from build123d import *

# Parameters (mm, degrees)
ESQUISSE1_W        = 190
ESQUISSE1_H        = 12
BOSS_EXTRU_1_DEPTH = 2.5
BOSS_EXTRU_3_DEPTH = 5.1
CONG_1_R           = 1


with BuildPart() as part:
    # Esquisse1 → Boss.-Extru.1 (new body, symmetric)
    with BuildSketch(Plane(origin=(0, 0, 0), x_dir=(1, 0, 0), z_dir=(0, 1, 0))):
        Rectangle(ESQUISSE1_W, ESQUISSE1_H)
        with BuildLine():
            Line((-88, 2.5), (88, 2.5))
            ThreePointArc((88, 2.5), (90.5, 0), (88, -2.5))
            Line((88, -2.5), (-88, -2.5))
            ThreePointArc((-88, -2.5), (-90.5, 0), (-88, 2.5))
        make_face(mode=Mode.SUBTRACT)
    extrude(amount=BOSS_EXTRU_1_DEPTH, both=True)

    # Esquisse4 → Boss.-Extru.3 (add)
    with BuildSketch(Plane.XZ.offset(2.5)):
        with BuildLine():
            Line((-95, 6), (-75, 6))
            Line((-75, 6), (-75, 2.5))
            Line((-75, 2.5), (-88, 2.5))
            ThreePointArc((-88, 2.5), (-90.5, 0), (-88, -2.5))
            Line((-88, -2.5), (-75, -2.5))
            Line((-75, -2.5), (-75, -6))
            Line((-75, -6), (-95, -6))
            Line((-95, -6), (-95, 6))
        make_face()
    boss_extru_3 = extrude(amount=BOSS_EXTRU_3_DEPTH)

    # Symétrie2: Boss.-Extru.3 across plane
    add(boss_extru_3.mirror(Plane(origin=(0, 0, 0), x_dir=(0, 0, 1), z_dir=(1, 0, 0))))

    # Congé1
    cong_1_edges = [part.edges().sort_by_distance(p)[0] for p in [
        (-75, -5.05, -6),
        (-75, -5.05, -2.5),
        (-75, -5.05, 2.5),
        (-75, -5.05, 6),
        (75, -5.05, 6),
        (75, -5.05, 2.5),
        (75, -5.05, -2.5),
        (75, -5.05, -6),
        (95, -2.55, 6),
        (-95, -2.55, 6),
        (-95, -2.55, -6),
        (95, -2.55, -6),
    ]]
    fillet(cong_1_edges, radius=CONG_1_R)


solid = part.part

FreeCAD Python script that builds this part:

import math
import FreeCAD as App
import Part
import Sketcher
Q = App.Units.Quantity


def edges_at(feature, points):
    """Names of the edges that pass closest to the given points."""
    edges = feature.Shape.Edges
    near = lambda p: min(range(len(edges)), key=lambda i: edges[i].distToShape(Part.Vertex(*p))[0])
    return sorted({f"Edge{near(p) + 1}" for p in points})


def add_polygon(sketch, points):
    """Adds a closed chain of lines whose ends are joined by coincident constraints."""
    first, n = sketch.GeometryCount, len(points)
    for a, b in zip(points, points[1:] + points[:1]):
        sketch.addGeometry(Part.LineSegment(App.Vector(*a, 0), App.Vector(*b, 0)), False)
    for i in range(n):
        sketch.addConstraint(Sketcher.Constraint("Coincident", first + i, 2, first + (i + 1) % n, 1))

doc = App.newDocument("Part")
body = doc.addObject("PartDesign::Body", "Body")

# Sketch on XZ plane
sketch1 = body.newObject("Sketcher::SketchObject", "Sketch")
sketch1.AttachmentSupport = (doc.getObject("XZ_Plane"), [""])
sketch1.MapMode = "FlatFace"
add_polygon(sketch1, [(-95, -6), (-95, 6), (95, 6), (95, -6)])  # lines 0-3
sketch1.addGeometry(Part.ArcOfCircle(Part.Circle(App.Vector(-88, 0, 0), App.Vector(0, 0, 1), 2.5), math.radians(90), math.radians(270)), False)  # 4
sketch1.addGeometry(Part.LineSegment(App.Vector(-88, -2.5, 0), App.Vector(88, -2.5, 0)), False)  # 5
sketch1.addGeometry(Part.ArcOfCircle(Part.Circle(App.Vector(88, 0, 0), App.Vector(0, 0, 1), 2.5), math.radians(-90), math.radians(90)), False)  # 6
sketch1.addGeometry(Part.LineSegment(App.Vector(88, 2.5, 0), App.Vector(-88, 2.5, 0)), False)  # 7
sketch1.addConstraint(Sketcher.Constraint("Tangent", 4, 2, 5, 1))
sketch1.addConstraint(Sketcher.Constraint("Tangent", 5, 2, 6, 1))
sketch1.addConstraint(Sketcher.Constraint("Tangent", 6, 2, 7, 1))
sketch1.addConstraint(Sketcher.Constraint("Tangent", 7, 2, 4, 1))
sketch1.addConstraint(Sketcher.Constraint("Vertical", 0))
sketch1.addConstraint(Sketcher.Constraint("Horizontal", 1))
sketch1.addConstraint(Sketcher.Constraint("Vertical", 2))
sketch1.addConstraint(Sketcher.Constraint("Horizontal", 3))
sketch1.addConstraint(Sketcher.Constraint("Horizontal", 5))
sketch1.addConstraint(Sketcher.Constraint("Horizontal", 7))
sketch1.addConstraint(Sketcher.Constraint("Symmetric", 4, 3, 6, 3, -1, 1))
sketch1.addConstraint(Sketcher.Constraint("Symmetric", 0, 2, 2, 2, -1, 1))
sketch1.addConstraint(Sketcher.Constraint("Radius", 4, Q("2.5 mm")))
sketch1.addConstraint(Sketcher.Constraint("DistanceX", 1, 1, 1, 2, Q("190 mm")))
sketch1.addConstraint(Sketcher.Constraint("DistanceX", 5, 1, 5, 2, Q("176 mm")))
sketch1.addConstraint(Sketcher.Constraint("DistanceY", 0, 1, 0, 2, Q("12 mm")))
pad1 = body.newObject("PartDesign::Pad", "Pad")
pad1.Profile = sketch1
pad1.Length = 5
pad1.Midplane = True

# Sketch on XZ plane
sketch2 = body.newObject("Sketcher::SketchObject", "Sketch001")
sketch2.AttachmentSupport = (doc.getObject("XZ_Plane"), [""])
sketch2.MapMode = "FlatFace"
sketch2.AttachmentOffset = App.Placement(App.Vector(0, 0, 2.5), App.Rotation())
sketch2.addGeometry(Part.LineSegment(App.Vector(-75, 6, 0), App.Vector(-95, 6, 0)), False)
sketch2.addGeometry(Part.LineSegment(App.Vector(-95, 6, 0), App.Vector(-95, -6, 0)), False)
sketch2.addGeometry(Part.LineSegment(App.Vector(-95, -6, 0), App.Vector(-75, -6, 0)), False)
sketch2.addGeometry(Part.LineSegment(App.Vector(-75, -6, 0), App.Vector(-75, -2.5, 0)), False)
sketch2.addGeometry(Part.LineSegment(App.Vector(-75, -2.5, 0), App.Vector(-88, -2.5, 0)), False)
sketch2.addGeometry(Part.ArcOfCircle(Part.Circle(App.Vector(-88, 0, 0), App.Vector(0, 0, 1), 2.5), math.radians(90), math.radians(270)), False)
sketch2.addGeometry(Part.LineSegment(App.Vector(-88, 2.5, 0), App.Vector(-75, 2.5, 0)), False)
sketch2.addGeometry(Part.LineSegment(App.Vector(-75, 2.5, 0), App.Vector(-75, 6, 0)), False)
sketch2.addConstraint(Sketcher.Constraint("Coincident", 0, 2, 1, 1))
sketch2.addConstraint(Sketcher.Constraint("Coincident", 1, 2, 2, 1))
sketch2.addConstraint(Sketcher.Constraint("Coincident", 2, 2, 3, 1))
sketch2.addConstraint(Sketcher.Constraint("Coincident", 3, 2, 4, 1))
sketch2.addConstraint(Sketcher.Constraint("Tangent", 4, 2, 5, 2))
sketch2.addConstraint(Sketcher.Constraint("Tangent", 5, 1, 6, 1))
sketch2.addConstraint(Sketcher.Constraint("Coincident", 6, 2, 7, 1))
sketch2.addConstraint(Sketcher.Constraint("Coincident", 7, 2, 0, 1))
sketch2.addConstraint(Sketcher.Constraint("Horizontal", 0))
sketch2.addConstraint(Sketcher.Constraint("Vertical", 1))
sketch2.addConstraint(Sketcher.Constraint("Horizontal", 2))
sketch2.addConstraint(Sketcher.Constraint("Vertical", 3))
sketch2.addConstraint(Sketcher.Constraint("Horizontal", 4))
sketch2.addConstraint(Sketcher.Constraint("Horizontal", 6))
sketch2.addConstraint(Sketcher.Constraint("Vertical", 7))
sketch2.addConstraint(Sketcher.Constraint("Symmetric", 3, 2, 6, 2, -1))
sketch2.addConstraint(Sketcher.Constraint("Equal", 3, 7))
sketch2.addConstraint(Sketcher.Constraint("Radius", 5, Q("2.5 mm")))
sketch2.addConstraint(Sketcher.Constraint("DistanceX", 0, 2, 0, 1, Q("20 mm")))
sketch2.addConstraint(Sketcher.Constraint("DistanceX", 4, 2, 4, 1, Q("13 mm")))
sketch2.addConstraint(Sketcher.Constraint("DistanceY", 1, 2, 1, 1, Q("12 mm")))
sketch2.addConstraint(Sketcher.Constraint("DistanceX", 5, 3, -1, 1, Q("88 mm")))
pad2 = body.newObject("PartDesign::Pad", "Pad001")
pad2.Profile = sketch2
pad2.Length = 5.1
doc.recompute()

mirrored = body.newObject("PartDesign::Mirrored", "Mirrored")
mirrored.Originals = [pad2]
mirrored.MirrorPlane = (doc.getObject("YZ_Plane"), [""])
body.Tip = mirrored
doc.recompute()

fillet = body.newObject("PartDesign::Fillet", "Fillet")
fillet.Base = (mirrored, edges_at(mirrored, [
    (-75, -5.05, -6),
    (-75, -5.05, -2.5),
    (-75, -5.05, 2.5),
    (-75, -5.05, 6),
    (75, -5.05, 6),
    (75, -5.05, 2.5),
    (75, -5.05, -2.5),
    (75, -5.05, -6),
    (95, -2.55, 6),
    (-95, -2.55, 6),
    (-95, -2.55, -6),
    (95, -2.55, -6),
]))
fillet.Radius = 1

doc.recompute()
